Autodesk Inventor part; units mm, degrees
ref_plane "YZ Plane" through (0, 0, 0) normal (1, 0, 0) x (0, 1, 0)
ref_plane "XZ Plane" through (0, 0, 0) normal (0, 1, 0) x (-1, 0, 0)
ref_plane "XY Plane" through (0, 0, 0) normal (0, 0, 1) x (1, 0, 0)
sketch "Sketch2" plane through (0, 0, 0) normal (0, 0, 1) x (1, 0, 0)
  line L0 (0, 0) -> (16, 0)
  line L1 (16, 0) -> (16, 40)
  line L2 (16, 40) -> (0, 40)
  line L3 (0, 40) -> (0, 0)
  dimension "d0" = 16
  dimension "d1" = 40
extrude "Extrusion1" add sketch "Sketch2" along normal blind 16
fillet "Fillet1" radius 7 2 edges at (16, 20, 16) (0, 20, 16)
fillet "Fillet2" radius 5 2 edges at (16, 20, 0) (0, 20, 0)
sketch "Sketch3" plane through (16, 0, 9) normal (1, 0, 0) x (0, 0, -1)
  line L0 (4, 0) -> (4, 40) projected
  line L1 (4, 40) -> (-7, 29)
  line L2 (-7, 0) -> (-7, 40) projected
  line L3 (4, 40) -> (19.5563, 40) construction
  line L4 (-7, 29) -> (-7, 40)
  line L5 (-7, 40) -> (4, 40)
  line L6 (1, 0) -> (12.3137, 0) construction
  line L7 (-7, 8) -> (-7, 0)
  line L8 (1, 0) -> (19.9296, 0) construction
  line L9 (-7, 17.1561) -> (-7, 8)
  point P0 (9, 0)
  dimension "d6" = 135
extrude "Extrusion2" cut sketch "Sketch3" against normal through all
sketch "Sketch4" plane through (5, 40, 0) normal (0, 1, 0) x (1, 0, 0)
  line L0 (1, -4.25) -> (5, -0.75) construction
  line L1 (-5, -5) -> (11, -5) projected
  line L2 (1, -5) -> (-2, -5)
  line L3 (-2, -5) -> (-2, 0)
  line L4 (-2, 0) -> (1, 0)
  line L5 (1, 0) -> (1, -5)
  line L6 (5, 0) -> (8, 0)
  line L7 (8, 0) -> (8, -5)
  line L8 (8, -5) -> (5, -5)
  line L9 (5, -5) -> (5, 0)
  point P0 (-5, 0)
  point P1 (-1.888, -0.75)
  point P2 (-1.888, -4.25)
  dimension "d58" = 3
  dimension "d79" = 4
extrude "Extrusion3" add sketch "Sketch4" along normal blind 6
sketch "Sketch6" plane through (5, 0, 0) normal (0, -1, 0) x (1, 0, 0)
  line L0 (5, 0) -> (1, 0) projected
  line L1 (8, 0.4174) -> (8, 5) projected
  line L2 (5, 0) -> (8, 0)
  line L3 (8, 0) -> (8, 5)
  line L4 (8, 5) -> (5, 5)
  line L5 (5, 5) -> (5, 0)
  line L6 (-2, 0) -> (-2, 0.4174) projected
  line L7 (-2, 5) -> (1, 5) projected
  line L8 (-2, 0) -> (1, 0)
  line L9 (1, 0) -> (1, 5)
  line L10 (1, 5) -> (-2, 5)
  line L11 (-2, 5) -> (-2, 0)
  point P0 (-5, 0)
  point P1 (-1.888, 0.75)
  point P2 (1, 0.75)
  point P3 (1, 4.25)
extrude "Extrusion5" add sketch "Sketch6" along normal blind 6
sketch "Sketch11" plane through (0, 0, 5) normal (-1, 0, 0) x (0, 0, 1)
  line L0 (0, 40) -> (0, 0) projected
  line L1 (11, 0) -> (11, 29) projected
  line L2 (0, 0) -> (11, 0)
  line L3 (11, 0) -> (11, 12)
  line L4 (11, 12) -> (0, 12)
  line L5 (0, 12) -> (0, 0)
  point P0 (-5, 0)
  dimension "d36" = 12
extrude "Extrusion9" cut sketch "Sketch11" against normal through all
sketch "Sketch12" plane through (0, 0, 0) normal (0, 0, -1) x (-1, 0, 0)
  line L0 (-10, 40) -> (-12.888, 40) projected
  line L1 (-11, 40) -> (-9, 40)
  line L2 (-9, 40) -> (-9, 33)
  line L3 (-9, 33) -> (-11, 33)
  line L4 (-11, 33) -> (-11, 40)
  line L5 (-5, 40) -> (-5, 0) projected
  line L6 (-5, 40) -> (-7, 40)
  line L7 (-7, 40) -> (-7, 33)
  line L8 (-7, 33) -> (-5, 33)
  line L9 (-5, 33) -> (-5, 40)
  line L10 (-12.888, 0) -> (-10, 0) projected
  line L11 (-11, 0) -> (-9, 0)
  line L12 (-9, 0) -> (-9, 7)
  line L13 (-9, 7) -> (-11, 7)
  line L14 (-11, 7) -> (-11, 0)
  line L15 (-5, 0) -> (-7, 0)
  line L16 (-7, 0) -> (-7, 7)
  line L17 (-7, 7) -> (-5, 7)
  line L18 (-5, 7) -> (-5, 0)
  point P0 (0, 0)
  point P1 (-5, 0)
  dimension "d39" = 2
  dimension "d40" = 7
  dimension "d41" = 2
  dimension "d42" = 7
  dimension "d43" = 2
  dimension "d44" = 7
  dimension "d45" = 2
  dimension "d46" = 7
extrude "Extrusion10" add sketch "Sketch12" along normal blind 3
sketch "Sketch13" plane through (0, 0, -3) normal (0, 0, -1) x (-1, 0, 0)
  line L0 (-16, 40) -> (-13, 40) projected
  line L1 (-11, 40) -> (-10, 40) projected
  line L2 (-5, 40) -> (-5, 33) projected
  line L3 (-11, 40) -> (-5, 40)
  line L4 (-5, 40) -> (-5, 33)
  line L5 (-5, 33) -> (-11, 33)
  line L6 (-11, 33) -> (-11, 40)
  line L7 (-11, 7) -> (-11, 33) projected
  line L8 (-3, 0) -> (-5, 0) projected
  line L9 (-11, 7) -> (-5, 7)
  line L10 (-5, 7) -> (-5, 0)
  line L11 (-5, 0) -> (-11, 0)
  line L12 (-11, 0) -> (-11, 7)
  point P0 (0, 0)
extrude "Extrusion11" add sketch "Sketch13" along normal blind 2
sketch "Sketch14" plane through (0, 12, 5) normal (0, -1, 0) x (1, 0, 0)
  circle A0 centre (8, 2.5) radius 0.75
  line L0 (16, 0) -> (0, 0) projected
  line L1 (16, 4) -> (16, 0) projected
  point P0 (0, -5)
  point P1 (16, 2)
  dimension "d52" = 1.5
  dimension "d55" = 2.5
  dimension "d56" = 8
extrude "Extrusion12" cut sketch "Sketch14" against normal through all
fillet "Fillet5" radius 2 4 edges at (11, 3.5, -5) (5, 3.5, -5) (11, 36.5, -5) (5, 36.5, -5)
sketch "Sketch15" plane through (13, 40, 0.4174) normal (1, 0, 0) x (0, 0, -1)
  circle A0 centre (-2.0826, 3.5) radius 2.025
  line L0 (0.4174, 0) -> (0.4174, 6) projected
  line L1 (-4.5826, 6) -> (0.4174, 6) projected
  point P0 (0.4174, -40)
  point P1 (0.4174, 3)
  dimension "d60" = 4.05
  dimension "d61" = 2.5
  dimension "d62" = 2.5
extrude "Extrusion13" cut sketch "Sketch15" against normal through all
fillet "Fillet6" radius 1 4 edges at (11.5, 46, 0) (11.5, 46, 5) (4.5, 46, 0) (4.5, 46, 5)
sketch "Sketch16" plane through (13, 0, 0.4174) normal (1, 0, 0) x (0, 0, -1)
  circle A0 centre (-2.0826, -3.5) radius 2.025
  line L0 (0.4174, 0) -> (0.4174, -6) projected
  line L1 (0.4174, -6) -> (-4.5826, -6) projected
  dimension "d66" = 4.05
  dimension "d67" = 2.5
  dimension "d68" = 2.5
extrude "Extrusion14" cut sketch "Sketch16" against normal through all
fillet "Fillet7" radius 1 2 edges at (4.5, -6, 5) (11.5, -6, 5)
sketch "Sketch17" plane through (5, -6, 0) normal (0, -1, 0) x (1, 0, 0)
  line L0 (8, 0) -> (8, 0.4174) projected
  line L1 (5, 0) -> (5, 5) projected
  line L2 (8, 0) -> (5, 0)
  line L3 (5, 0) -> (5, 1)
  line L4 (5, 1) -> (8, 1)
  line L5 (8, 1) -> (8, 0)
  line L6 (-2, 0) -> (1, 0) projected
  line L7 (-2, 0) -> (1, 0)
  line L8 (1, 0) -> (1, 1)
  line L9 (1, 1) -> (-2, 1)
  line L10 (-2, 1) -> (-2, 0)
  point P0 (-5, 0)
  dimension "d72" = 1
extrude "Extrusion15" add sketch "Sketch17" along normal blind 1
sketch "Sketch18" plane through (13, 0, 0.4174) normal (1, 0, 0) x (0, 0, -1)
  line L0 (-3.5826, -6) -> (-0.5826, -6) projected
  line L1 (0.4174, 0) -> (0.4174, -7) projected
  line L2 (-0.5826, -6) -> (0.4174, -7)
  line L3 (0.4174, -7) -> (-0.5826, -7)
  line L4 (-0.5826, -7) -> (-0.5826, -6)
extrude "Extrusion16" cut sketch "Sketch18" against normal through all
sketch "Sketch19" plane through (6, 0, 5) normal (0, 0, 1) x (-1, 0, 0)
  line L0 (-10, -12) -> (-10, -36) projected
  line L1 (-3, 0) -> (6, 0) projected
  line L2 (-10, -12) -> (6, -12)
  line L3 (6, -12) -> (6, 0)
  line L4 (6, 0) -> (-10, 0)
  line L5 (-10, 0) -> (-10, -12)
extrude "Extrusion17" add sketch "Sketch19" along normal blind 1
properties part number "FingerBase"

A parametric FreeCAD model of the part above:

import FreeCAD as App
import Part
import Sketcher
from FreeCAD import Vector
Q = App.Units.Quantity


def edges_at(feature, points):
    """Names of the edges that pass closest to the given points."""
    edges = feature.Shape.Edges
    near = lambda p: min(range(len(edges)), key=lambda i: edges[i].distToShape(Part.Vertex(*p))[0])
    return sorted({f"Edge{near(p) + 1}" for p in points})

doc = App.newDocument("Part")
body = doc.addObject("PartDesign::Body", "Body")

# Sketch on XY plane
sketch1 = doc.addObject("Sketcher::SketchObject", "Sketch")
body.addObject(sketch1)
sketch1.AttachmentSupport = (doc.XY_Plane, [""])
sketch1.MapMode = "FlatFace"
sketch1.addGeometry(Part.LineSegment(Vector(0, 40, 0), Vector(0, 0, 0)), False)
sketch1.addGeometry(Part.LineSegment(Vector(0, 0, 0), Vector(16, 0, 0)), False)
sketch1.addGeometry(Part.LineSegment(Vector(16, 0, 0), Vector(16, 40, 0)), False)
sketch1.addGeometry(Part.LineSegment(Vector(16, 40, 0), Vector(0, 40, 0)), False)
sketch1.addConstraint(Sketcher.Constraint("Coincident", 0, 2, 1, 1))
sketch1.addConstraint(Sketcher.Constraint("Coincident", 1, 2, 2, 1))
sketch1.addConstraint(Sketcher.Constraint("Coincident", 2, 2, 3, 1))
sketch1.addConstraint(Sketcher.Constraint("Coincident", 3, 2, 0, 1))
sketch1.addConstraint(Sketcher.Constraint("Vertical", 0))
sketch1.addConstraint(Sketcher.Constraint("Horizontal", 1))
sketch1.addConstraint(Sketcher.Constraint("Vertical", 2))
sketch1.addConstraint(Sketcher.Constraint("Horizontal", 3))
sketch1.addConstraint(Sketcher.Constraint("Coincident", 0, 2, -1, 1))
sketch1.addConstraint(Sketcher.Constraint("DistanceX", 1, 1, 1, 2, Q("16 mm")))
sketch1.addConstraint(Sketcher.Constraint("DistanceY", 0, 2, 0, 1, Q("40 mm")))
pad1 = doc.addObject("PartDesign::Pad", "Pad")
body.addObject(pad1)
pad1.Profile = sketch1
pad1.Length = 16
doc.recompute()

fillet = doc.addObject("PartDesign::Fillet", "Fillet")
body.addObject(fillet)
fillet.Base = (pad1, edges_at(pad1, [(16, 20, 16), (0, 20, 16)]))
fillet.Radius = 7
doc.recompute()

fillet2 = doc.addObject("PartDesign::Fillet", "Fillet001")
body.addObject(fillet2)
fillet2.Base = (fillet, edges_at(fillet, [(16, 20, 0), (0, 20, 0)]))
fillet2.Radius = 5

# Sketch on YZ plane
sketch2 = doc.addObject("Sketcher::SketchObject", "Sketch001")
body.addObject(sketch2)
sketch2.AttachmentSupport = (doc.YZ_Plane, [""])
sketch2.MapMode = "FlatFace"
sketch2.AttachmentOffset = App.Placement(Vector(0, 0, 16), App.Rotation())
sketch2.addGeometry(Part.LineSegment(Vector(29, 16, 0), Vector(40, 5, 0)), False)
sketch2.addGeometry(Part.LineSegment(Vector(40, 5, 0), Vector(40, 16, 0)), False)
sketch2.addGeometry(Part.LineSegment(Vector(40, 16, 0), Vector(29, 16, 0)), False)
sketch2.addConstraint(Sketcher.Constraint("Coincident", 0, 2, 1, 1))
sketch2.addConstraint(Sketcher.Constraint("Coincident", 1, 2, 2, 1))
sketch2.addConstraint(Sketcher.Constraint("Coincident", 2, 2, 0, 1))
sketch2.addConstraint(Sketcher.Constraint("Vertical", 1))
sketch2.addConstraint(Sketcher.Constraint("Horizontal", 2))
sketch2.addConstraint(Sketcher.Constraint("Equal", 2, 1))
sketch2.addConstraint(Sketcher.Constraint("DistanceX", 2, 2, 2, 1, Q("11 mm")))
sketch2.addConstraint(Sketcher.Constraint("DistanceX", -1, 1, 0, 2, Q("40 mm")))
sketch2.addConstraint(Sketcher.Constraint("DistanceY", -1, 1, 0, 2, Q("5 mm")))
pocket1 = doc.addObject("PartDesign::Pocket", "Pocket")
body.addObject(pocket1)
pocket1.Profile = sketch2
pocket1.Type = "ThroughAll"

# Sketch on XZ plane
sketch3 = doc.addObject("Sketcher::SketchObject", "Sketch002")
body.addObject(sketch3)
sketch3.AttachmentSupport = (doc.XZ_Plane, [""])
sketch3.MapMode = "FlatFace"
sketch3.AttachmentOffset = App.Placement(Vector(0, 0, -40), App.Rotation())
sketch3.addGeometry(Part.LineSegment(Vector(3, 0, 0), Vector(3, 5, 0)), False)
sketch3.addGeometry(Part.LineSegment(Vector(3, 5, 0), Vector(6, 5, 0)), False)
sketch3.addGeometry(Part.LineSegment(Vector(6, 5, 0), Vector(6, 0, 0)), False)
sketch3.addGeometry(Part.LineSegment(Vector(6, 0, 0), Vector(3, 0, 0)), False)
sketch3.addGeometry(Part.LineSegment(Vector(10, 0, 0), Vector(10, 5, 0)), False)
sketch3.addGeometry(Part.LineSegment(Vector(10, 5, 0), Vector(13, 5, 0)), False)
sketch3.addGeometry(Part.LineSegment(Vector(13, 5, 0), Vector(13, 0, 0)), False)
sketch3.addGeometry(Part.LineSegment(Vector(13, 0, 0), Vector(10, 0, 0)), False)
sketch3.addConstraint(Sketcher.Constraint("Coincident", 0, 2, 1, 1))
sketch3.addConstraint(Sketcher.Constraint("Coincident", 1, 2, 2, 1))
sketch3.addConstraint(Sketcher.Constraint("Coincident", 2, 2, 3, 1))
sketch3.addConstraint(Sketcher.Constraint("Coincident", 3, 2, 0, 1))
sketch3.addConstraint(Sketcher.Constraint("Coincident", 4, 2, 5, 1))
sketch3.addConstraint(Sketcher.Constraint("Coincident", 5, 2, 6, 1))
sketch3.addConstraint(Sketcher.Constraint("Coincident", 6, 2, 7, 1))
sketch3.addConstraint(Sketcher.Constraint("Coincident", 7, 2, 4, 1))
sketch3.addConstraint(Sketcher.Constraint("Vertical", 0))
sketch3.addConstraint(Sketcher.Constraint("Horizontal", 1))
sketch3.addConstraint(Sketcher.Constraint("Vertical", 2))
sketch3.addConstraint(Sketcher.Constraint("Horizontal", 3))
sketch3.addConstraint(Sketcher.Constraint("Vertical", 4))
sketch3.addConstraint(Sketcher.Constraint("Horizontal", 5))
sketch3.addConstraint(Sketcher.Constraint("Vertical", 6))
sketch3.addConstraint(Sketcher.Constraint("Horizontal", 7))
sketch3.addConstraint(Sketcher.Constraint("PointOnObject", 2, 2, -1))
sketch3.addConstraint(Sketcher.Constraint("PointOnObject", 6, 2, -1))
sketch3.addConstraint(Sketcher.Constraint("Horizontal", 1, 2, 4, 2))
sketch3.addConstraint(Sketcher.Constraint("Equal", 3, 5))
sketch3.addConstraint(Sketcher.Constraint("DistanceX", 1, 1, 1, 2, Q("3 mm")))
sketch3.addConstraint(Sketcher.Constraint("DistanceX", -1, 1, 0, 2, Q("3 mm")))
sketch3.addConstraint(Sketcher.Constraint("DistanceX", 1, 2, 4, 2, Q("4 mm")))
sketch3.addConstraint(Sketcher.Constraint("DistanceY", 0, 1, 0, 2, Q("5 mm")))
pad2 = doc.addObject("PartDesign::Pad", "Pad001")
body.addObject(pad2)
pad2.Profile = sketch3
pad2.Length = 6
pad2.Reversed = True

# Sketch on XZ plane
sketch4 = doc.addObject("Sketcher::SketchObject", "Sketch003")
body.addObject(sketch4)
sketch4.AttachmentSupport = (doc.XZ_Plane, [""])
sketch4.MapMode = "FlatFace"
sketch4.addGeometry(Part.LineSegment(Vector(3, 0, 0), Vector(6, 0, 0)), False)
sketch4.addGeometry(Part.LineSegment(Vector(6, 0, 0), Vector(6, 5, 0)), False)
sketch4.addGeometry(Part.LineSegment(Vector(6, 5, 0), Vector(3, 5, 0)), False)
sketch4.addGeometry(Part.LineSegment(Vector(3, 5, 0), Vector(3, 0, 0)), False)
sketch4.addGeometry(Part.LineSegment(Vector(10, 5, 0), Vector(10, 0, 0)), False)
sketch4.addGeometry(Part.LineSegment(Vector(10, 0, 0), Vector(13, 0, 0)), False)
sketch4.addGeometry(Part.LineSegment(Vector(13, 0, 0), Vector(13, 5, 0)), False)
sketch4.addGeometry(Part.LineSegment(Vector(13, 5, 0), Vector(10, 5, 0)), False)
sketch4.addConstraint(Sketcher.Constraint("Coincident", 0, 2, 1, 1))
sketch4.addConstraint(Sketcher.Constraint("Coincident", 1, 2, 2, 1))
sketch4.addConstraint(Sketcher.Constraint("Coincident", 2, 2, 3, 1))
sketch4.addConstraint(Sketcher.Constraint("Coincident", 3, 2, 0, 1))
sketch4.addConstraint(Sketcher.Constraint("Coincident", 4, 2, 5, 1))
sketch4.addConstraint(Sketcher.Constraint("Coincident", 5, 2, 6, 1))
sketch4.addConstraint(Sketcher.Constraint("Coincident", 6, 2, 7, 1))
sketch4.addConstraint(Sketcher.Constraint("Coincident", 7, 2, 4, 1))
sketch4.addConstraint(Sketcher.Constraint("Horizontal", 0))
sketch4.addConstraint(Sketcher.Constraint("Vertical", 1))
sketch4.addConstraint(Sketcher.Constraint("Horizontal", 2))
sketch4.addConstraint(Sketcher.Constraint("Vertical", 3))
sketch4.addConstraint(Sketcher.Constraint("Vertical", 4))
sketch4.addConstraint(Sketcher.Constraint("Horizontal", 5))
sketch4.addConstraint(Sketcher.Constraint("Vertical", 6))
sketch4.addConstraint(Sketcher.Constraint("Horizontal", 7))
sketch4.addConstraint(Sketcher.Constraint("PointOnObject", 0, 2, -1))
sketch4.addConstraint(Sketcher.Constraint("PointOnObject", 4, 2, -1))
sketch4.addConstraint(Sketcher.Constraint("Horizontal", 2, 2, 6, 2))
sketch4.addConstraint(Sketcher.Constraint("Equal", 2, 5))
sketch4.addConstraint(Sketcher.Constraint("DistanceX", 0, 1, 0, 2, Q("3 mm")))
sketch4.addConstraint(Sketcher.Constraint("DistanceY", 1, 1, 1, 2, Q("5 mm")))
sketch4.addConstraint(Sketcher.Constraint("DistanceX", -1, 1, 0, 2, Q("6 mm")))
sketch4.addConstraint(Sketcher.Constraint("DistanceX", -1, 1, 4, 2, Q("10 mm")))
pad3 = doc.addObject("PartDesign::Pad", "Pad002")
body.addObject(pad3)
pad3.Profile = sketch4
pad3.Length = 6

# Sketch on YZ plane
sketch5 = doc.addObject("Sketcher::SketchObject", "Sketch004")
body.addObject(sketch5)
sketch5.AttachmentSupport = (doc.YZ_Plane, [""])
sketch5.MapMode = "FlatFace"
sketch5.addGeometry(Part.LineSegment(Vector(12, 16, 0), Vector(12, 5, 0)), False)
sketch5.addGeometry(Part.LineSegment(Vector(12, 5, 0), Vector(0, 5, 0)), False)
sketch5.addGeometry(Part.LineSegment(Vector(0, 5, 0), Vector(0, 16, 0)), False)
sketch5.addGeometry(Part.LineSegment(Vector(0, 16, 0), Vector(12, 16, 0)), False)
sketch5.addConstraint(Sketcher.Constraint("Coincident", 0, 2, 1, 1))
sketch5.addConstraint(Sketcher.Constraint("Coincident", 1, 2, 2, 1))
sketch5.addConstraint(Sketcher.Constraint("Coincident", 2, 2, 3, 1))
sketch5.addConstraint(Sketcher.Constraint("Coincident", 3, 2, 0, 1))
sketch5.addConstraint(Sketcher.Constraint("Vertical", 0))
sketch5.addConstraint(Sketcher.Constraint("Horizontal", 1))
sketch5.addConstraint(Sketcher.Constraint("Vertical", 2))
sketch5.addConstraint(Sketcher.Constraint("Horizontal", 3))
sketch5.addConstraint(Sketcher.Constraint("PointOnObject", 1, 2, -2))
sketch5.addConstraint(Sketcher.Constraint("DistanceX", 1, 2, 1, 1, Q("12 mm")))
sketch5.addConstraint(Sketcher.Constraint("DistanceY", 0, 2, 0, 1, Q("11 mm")))
sketch5.addConstraint(Sketcher.Constraint("DistanceY", -1, 1, 0, 2, Q("5 mm")))
pocket2 = doc.addObject("PartDesign::Pocket", "Pocket001")
body.addObject(pocket2)
pocket2.Profile = sketch5
pocket2.Type = "ThroughAll"
pocket2.Reversed = True

# Sketch on XY plane
sketch6 = doc.addObject("Sketcher::SketchObject", "Sketch005")
body.addObject(sketch6)
sketch6.AttachmentSupport = (doc.XY_Plane, [""])
sketch6.MapMode = "FlatFace"
sketch6.addGeometry(Part.LineSegment(Vector(9, 40, 0), Vector(11, 40, 0)), False)
sketch6.addGeometry(Part.LineSegment(Vector(11, 40, 0), Vector(11, 33, 0)), False)
sketch6.addGeometry(Part.LineSegment(Vector(11, 33, 0), Vector(9, 33, 0)), False)
sketch6.addGeometry(Part.LineSegment(Vector(9, 33, 0), Vector(9, 40, 0)), False)
sketch6.addGeometry(Part.LineSegment(Vector(5, 0, 0), Vector(5, 7, 0)), False)
sketch6.addGeometry(Part.LineSegment(Vector(5, 7, 0), Vector(7, 7, 0)), False)
sketch6.addGeometry(Part.LineSegment(Vector(7, 7, 0), Vector(7, 0, 0)), False)
sketch6.addGeometry(Part.LineSegment(Vector(7, 0, 0), Vector(5, 0, 0)), False)
sketch6.addGeometry(Part.LineSegment(Vector(5, 33, 0), Vector(5, 40, 0)), False)
sketch6.addGeometry(Part.LineSegment(Vector(5, 40, 0), Vector(7, 40, 0)), False)
sketch6.addGeometry(Part.LineSegment(Vector(7, 40, 0), Vector(7, 33, 0)), False)
sketch6.addGeometry(Part.LineSegment(Vector(7, 33, 0), Vector(5, 33, 0)), False)
sketch6.addGeometry(Part.LineSegment(Vector(11, 7, 0), Vector(11, 0, 0)), False)
sketch6.addGeometry(Part.LineSegment(Vector(11, 0, 0), Vector(9, 0, 0)), False)
sketch6.addGeometry(Part.LineSegment(Vector(9, 0, 0), Vector(9, 7, 0)), False)
sketch6.addGeometry(Part.LineSegment(Vector(9, 7, 0), Vector(11, 7, 0)), False)
sketch6.addConstraint(Sketcher.Constraint("Coincident", 0, 2, 1, 1))
sketch6.addConstraint(Sketcher.Constraint("Coincident", 1, 2, 2, 1))
sketch6.addConstraint(Sketcher.Constraint("Coincident", 2, 2, 3, 1))
sketch6.addConstraint(Sketcher.Constraint("Coincident", 3, 2, 0, 1))
sketch6.addConstraint(Sketcher.Constraint("Coincident", 4, 2, 5, 1))
sketch6.addConstraint(Sketcher.Constraint("Coincident", 5, 2, 6, 1))
sketch6.addConstraint(Sketcher.Constraint("Coincident", 6, 2, 7, 1))
sketch6.addConstraint(Sketcher.Constraint("Coincident", 7, 2, 4, 1))
sketch6.addConstraint(Sketcher.Constraint("Coincident", 8, 2, 9, 1))
sketch6.addConstraint(Sketcher.Constraint("Coincident", 9, 2, 10, 1))
sketch6.addConstraint(Sketcher.Constraint("Coincident", 10, 2, 11, 1))
sketch6.addConstraint(Sketcher.Constraint("Coincident", 11, 2, 8, 1))
sketch6.addConstraint(Sketcher.Constraint("Coincident", 12, 2, 13, 1))
sketch6.addConstraint(Sketcher.Constraint("Coincident", 13, 2, 14, 1))
sketch6.addConstraint(Sketcher.Constraint("Coincident", 14, 2, 15, 1))
sketch6.addConstraint(Sketcher.Constraint("Coincident", 15, 2, 12, 1))
sketch6.addConstraint(Sketcher.Constraint("Horizontal", 0))
sketch6.addConstraint(Sketcher.Constraint("Vertical", 1))
sketch6.addConstraint(Sketcher.Constraint("Horizontal", 2))
sketch6.addConstraint(Sketcher.Constraint("Vertical", 3))
sketch6.addConstraint(Sketcher.Constraint("Vertical", 4))
sketch6.addConstraint(Sketcher.Constraint("Horizontal", 5))
sketch6.addConstraint(Sketcher.Constraint("Vertical", 6))
sketch6.addConstraint(Sketcher.Constraint("Horizontal", 7))
sketch6.addConstraint(Sketcher.Constraint("Vertical", 8))
sketch6.addConstraint(Sketcher.Constraint("Horizontal", 9))
sketch6.addConstraint(Sketcher.Constraint("Vertical", 10))
sketch6.addConstraint(Sketcher.Constraint("Horizontal", 11))
sketch6.addConstraint(Sketcher.Constraint("Vertical", 12))
sketch6.addConstraint(Sketcher.Constraint("Horizontal", 13))
sketch6.addConstraint(Sketcher.Constraint("Vertical", 14))
sketch6.addConstraint(Sketcher.Constraint("Horizontal", 15))
sketch6.addConstraint(Sketcher.Constraint("PointOnObject", 6, 2, -1))
sketch6.addConstraint(Sketcher.Constraint("PointOnObject", 12, 2, -1))
sketch6.addConstraint(Sketcher.Constraint("Horizontal", 3, 2, 8, 2))
sketch6.addConstraint(Sketcher.Constraint("Horizontal", 2, 2, 10, 2))
sketch6.addConstraint(Sketcher.Constraint("Horizontal", 5, 2, 14, 2))
sketch6.addConstraint(Sketcher.Constraint("Vertical", 7, 2, 8, 2))
sketch6.addConstraint(Sketcher.Constraint("Vertical", 6, 2, 9, 2))
sketch6.addConstraint(Sketcher.Constraint("Vertical", 1, 2, 12, 2))
sketch6.addConstraint(Sketcher.Constraint("Vertical", 3, 2, 13, 2))
sketch6.addConstraint(Sketcher.Constraint("Equal", 2, 5))
sketch6.addConstraint(Sketcher.Constraint("Equal", 3, 4))
sketch6.addConstraint(Sketcher.Constraint("DistanceX", 0, 1, 0, 2, Q("2 mm")))
sketch6.addConstraint(Sketcher.Constraint("DistanceY", 1, 2, 1, 1, Q("7 mm")))
sketch6.addConstraint(Sketcher.Constraint("DistanceX", -1, 1, 5, 2, Q("7 mm")))
sketch6.addConstraint(Sketcher.Constraint("DistanceX", 5, 2, 2, 2, Q("2 mm")))
sketch6.addConstraint(Sketcher.Constraint("DistanceY", -1, 1, 0, 2, Q("40 mm")))
pad4 = doc.addObject("PartDesign::Pad", "Pad003")
body.addObject(pad4)
pad4.Profile = sketch6
pad4.Length = 3
pad4.Reversed = True

# Sketch on XY plane
sketch7 = doc.addObject("Sketcher::SketchObject", "Sketch006")
body.addObject(sketch7)
sketch7.AttachmentSupport = (doc.XY_Plane, [""])
sketch7.MapMode = "FlatFace"
sketch7.AttachmentOffset = App.Placement(Vector(0, 0, -3), App.Rotation())
sketch7.addGeometry(Part.LineSegment(Vector(5, 7, 0), Vector(11, 7, 0)), False)
sketch7.addGeometry(Part.LineSegment(Vector(11, 7, 0), Vector(11, 0, 0)), False)
sketch7.addGeometry(Part.LineSegment(Vector(11, 0, 0), Vector(5, 0, 0)), False)
sketch7.addGeometry(Part.LineSegment(Vector(5, 0, 0), Vector(5, 7, 0)), False)
sketch7.addGeometry(Part.LineSegment(Vector(5, 40, 0), Vector(11, 40, 0)), False)
sketch7.addGeometry(Part.LineSegment(Vector(11, 40, 0), Vector(11, 33, 0)), False)
sketch7.addGeometry(Part.LineSegment(Vector(11, 33, 0), Vector(5, 33, 0)), False)
sketch7.addGeometry(Part.LineSegment(Vector(5, 33, 0), Vector(5, 40, 0)), False)
sketch7.addConstraint(Sketcher.Constraint("Coincident", 0, 2, 1, 1))
sketch7.addConstraint(Sketcher.Constraint("Coincident", 1, 2, 2, 1))
sketch7.addConstraint(Sketcher.Constraint("Coincident", 2, 2, 3, 1))
sketch7.addConstraint(Sketcher.Constraint("Coincident", 3, 2, 0, 1))
sketch7.addConstraint(Sketcher.Constraint("Coincident", 4, 2, 5, 1))
sketch7.addConstraint(Sketcher.Constraint("Coincident", 5, 2, 6, 1))
sketch7.addConstraint(Sketcher.Constraint("Coincident", 6, 2, 7, 1))
sketch7.addConstraint(Sketcher.Constraint("Coincident", 7, 2, 4, 1))
sketch7.addConstraint(Sketcher.Constraint("Horizontal", 0))
sketch7.addConstraint(Sketcher.Constraint("Vertical", 1))
sketch7.addConstraint(Sketcher.Constraint("Horizontal", 2))
sketch7.addConstraint(Sketcher.Constraint("Vertical", 3))
sketch7.addConstraint(Sketcher.Constraint("Horizontal", 4))
sketch7.addConstraint(Sketcher.Constraint("Vertical", 5))
sketch7.addConstraint(Sketcher.Constraint("Horizontal", 6))
sketch7.addConstraint(Sketcher.Constraint("Vertical", 7))
sketch7.addConstraint(Sketcher.Constraint("PointOnObject", 1, 2, -1))
sketch7.addConstraint(Sketcher.Constraint("Vertical", 1, 2, 4, 2))
sketch7.addConstraint(Sketcher.Constraint("Vertical", 3, 2, 6, 2))
sketch7.addConstraint(Sketcher.Constraint("Equal", 3, 5))
sketch7.addConstraint(Sketcher.Constraint("DistanceX", 0, 1, 0, 2, Q("6 mm")))
sketch7.addConstraint(Sketcher.Constraint("DistanceY", 1, 2, 1, 1, Q("7 mm")))
sketch7.addConstraint(Sketcher.Constraint("DistanceX", -1, 1, 0, 2, Q("11 mm")))
sketch7.addConstraint(Sketcher.Constraint("DistanceY", -1, 1, 4, 2, Q("40 mm")))
pad5 = doc.addObject("PartDesign::Pad", "Pad004")
body.addObject(pad5)
pad5.Profile = sketch7
pad5.Length = 2
pad5.Reversed = True

# Sketch on XZ plane
sketch8 = doc.addObject("Sketcher::SketchObject", "Sketch007")
body.addObject(sketch8)
sketch8.AttachmentSupport = (doc.XZ_Plane, [""])
sketch8.MapMode = "FlatFace"
sketch8.AttachmentOffset = App.Placement(Vector(0, 0, -12), App.Rotation())
sketch8.addGeometry(Part.Circle(Vector(8, 7.5, 0), Vector(0, 0, 1), 0.75), False)
sketch8.addConstraint(Sketcher.Constraint("Diameter", 0, Q("1.5 mm")))
sketch8.addConstraint(Sketcher.Constraint("DistanceX", -1, 1, 0, 3, Q("8 mm")))
sketch8.addConstraint(Sketcher.Constraint("DistanceY", -1, 1, 0, 3, Q("7.5 mm")))
pocket3 = doc.addObject("PartDesign::Pocket", "Pocket002")
body.addObject(pocket3)
pocket3.Profile = sketch8
pocket3.Type = "ThroughAll"
doc.recompute()

fillet3 = doc.addObject("PartDesign::Fillet", "Fillet002")
body.addObject(fillet3)
fillet3.Base = (pocket3, edges_at(pocket3, [
    (11, 3.5, -5),
    (5, 3.5, -5),
    (11, 36.5, -5),
    (5, 36.5, -5),
]))
fillet3.Radius = 2

# Sketch on YZ plane
sketch9 = doc.addObject("Sketcher::SketchObject", "Sketch008")
body.addObject(sketch9)
sketch9.AttachmentSupport = (doc.YZ_Plane, [""])
sketch9.MapMode = "FlatFace"
sketch9.AttachmentOffset = App.Placement(Vector(0, 0, 13), App.Rotation())
sketch9.addGeometry(Part.Circle(Vector(43.5, 2.5, 0), Vector(0, 0, 1), 2.025), False)
sketch9.addConstraint(Sketcher.Constraint("Diameter", 0, Q("4.05 mm")))
sketch9.addConstraint(Sketcher.Constraint("DistanceY", -1, 1, 0, 3, Q("2.5 mm")))
sketch9.addConstraint(Sketcher.Constraint("DistanceX", -1, 1, 0, 3, Q("43.5 mm")))
pocket4 = doc.addObject("PartDesign::Pocket", "Pocket003")
body.addObject(pocket4)
pocket4.Profile = sketch9
pocket4.Type = "ThroughAll"
doc.recompute()

fillet4 = doc.addObject("PartDesign::Fillet", "Fillet003")
body.addObject(fillet4)
fillet4.Base = (pocket4, edges_at(pocket4, [
    (11.5, 46, 0),
    (11.5, 46, 5),
    (4.5, 46, 0),
    (4.5, 46, 5),
]))
fillet4.Radius = 1

# Sketch on YZ plane
sketch10 = doc.addObject("Sketcher::SketchObject", "Sketch009")
body.addObject(sketch10)
sketch10.AttachmentSupport = (doc.YZ_Plane, [""])
sketch10.MapMode = "FlatFace"
sketch10.AttachmentOffset = App.Placement(Vector(0, 0, 13), App.Rotation())
sketch10.addGeometry(Part.Circle(Vector(-3.5, 2.5, 0), Vector(0, 0, 1), 2.025), False)
sketch10.addConstraint(Sketcher.Constraint("Diameter", 0, Q("4.05 mm")))
sketch10.addConstraint(Sketcher.Constraint("DistanceY", -1, 1, 0, 3, Q("2.5 mm")))
sketch10.addConstraint(Sketcher.Constraint("DistanceX", 0, 3, -1, 1, Q("3.5 mm")))
pocket5 = doc.addObject("PartDesign::Pocket", "Pocket004")
body.addObject(pocket5)
pocket5.Profile = sketch10
pocket5.Type = "ThroughAll"
doc.recompute()

fillet5 = doc.addObject("PartDesign::Fillet", "Fillet004")
body.addObject(fillet5)
fillet5.Base = (pocket5, edges_at(pocket5, [(4.5, -6, 5), (11.5, -6, 5)]))
fillet5.Radius = 1

# Sketch on XZ plane
sketch11 = doc.addObject("Sketcher::SketchObject", "Sketch010")
body.addObject(sketch11)
sketch11.AttachmentSupport = (doc.XZ_Plane, [""])
sketch11.MapMode = "FlatFace"
sketch11.AttachmentOffset = App.Placement(Vector(0, 0, 6), App.Rotation())
sketch11.addGeometry(Part.LineSegment(Vector(10, 0, 0), Vector(13, 0, 0)), False)
sketch11.addGeometry(Part.LineSegment(Vector(13, 0, 0), Vector(13, 1, 0)), False)
sketch11.addGeometry(Part.LineSegment(Vector(13, 1, 0), Vector(10, 1, 0)), False)
sketch11.addGeometry(Part.LineSegment(Vector(10, 1, 0), Vector(10, 0, 0)), False)
sketch11.addGeometry(Part.LineSegment(Vector(3, 1, 0), Vector(3, 0, 0)), False)
sketch11.addGeometry(Part.LineSegment(Vector(3, 0, 0), Vector(6, 0, 0)), False)
sketch11.addGeometry(Part.LineSegment(Vector(6, 0, 0), Vector(6, 1, 0)), False)
sketch11.addGeometry(Part.LineSegment(Vector(6, 1, 0), Vector(3, 1, 0)), False)
sketch11.addConstraint(Sketcher.Constraint("Coincident", 0, 2, 1, 1))
sketch11.addConstraint(Sketcher.Constraint("Coincident", 1, 2, 2, 1))
sketch11.addConstraint(Sketcher.Constraint("Coincident", 2, 2, 3, 1))
sketch11.addConstraint(Sketcher.Constraint("Coincident", 3, 2, 0, 1))
sketch11.addConstraint(Sketcher.Constraint("Coincident", 4, 2, 5, 1))
sketch11.addConstraint(Sketcher.Constraint("Coincident", 5, 2, 6, 1))
sketch11.addConstraint(Sketcher.Constraint("Coincident", 6, 2, 7, 1))
sketch11.addConstraint(Sketcher.Constraint("Coincident", 7, 2, 4, 1))
sketch11.addConstraint(Sketcher.Constraint("Horizontal", 0))
sketch11.addConstraint(Sketcher.Constraint("Vertical", 1))
sketch11.addConstraint(Sketcher.Constraint("Horizontal", 2))
sketch11.addConstraint(Sketcher.Constraint("Vertical", 3))
sketch11.addConstraint(Sketcher.Constraint("Vertical", 4))
sketch11.addConstraint(Sketcher.Constraint("Horizontal", 5))
sketch11.addConstraint(Sketcher.Constraint("Vertical", 6))
sketch11.addConstraint(Sketcher.Constraint("Horizontal", 7))
sketch11.addConstraint(Sketcher.Constraint("PointOnObject", 0, 2, -1))
sketch11.addConstraint(Sketcher.Constraint("PointOnObject", 4, 2, -1))
sketch11.addConstraint(Sketcher.Constraint("Horizontal", 2, 2, 6, 2))
sketch11.addConstraint(Sketcher.Constraint("Equal", 2, 5))
sketch11.addConstraint(Sketcher.Constraint("DistanceY", 1, 1, 1, 2, Q("1 mm")))
sketch11.addConstraint(Sketcher.Constraint("DistanceX", 0, 1, 0, 2, Q("3 mm")))
sketch11.addConstraint(Sketcher.Constraint("DistanceX", -1, 1, 0, 2, Q("13 mm")))
sketch11.addConstraint(Sketcher.Constraint("DistanceX", -1, 1, 4, 2, Q("3 mm")))
pad6 = doc.addObject("PartDesign::Pad", "Pad005")
body.addObject(pad6)
pad6.Profile = sketch11
pad6.Length = 1

# Sketch on YZ plane
sketch12 = doc.addObject("Sketcher::SketchObject", "Sketch011")
body.addObject(sketch12)
sketch12.AttachmentSupport = (doc.YZ_Plane, [""])
sketch12.MapMode = "FlatFace"
sketch12.AttachmentOffset = App.Placement(Vector(0, 0, 13), App.Rotation())
sketch12.addGeometry(Part.LineSegment(Vector(-7, 0, 0), Vector(-6, 1, 0)), False)
sketch12.addGeometry(Part.LineSegment(Vector(-6, 1, 0), Vector(-7, 1, 0)), False)
sketch12.addGeometry(Part.LineSegment(Vector(-7, 1, 0), Vector(-7, 0, 0)), False)
sketch12.addConstraint(Sketcher.Constraint("Coincident", 0, 2, 1, 1))
sketch12.addConstraint(Sketcher.Constraint("Coincident", 1, 2, 2, 1))
sketch12.addConstraint(Sketcher.Constraint("Coincident", 2, 2, 0, 1))
sketch12.addConstraint(Sketcher.Constraint("Horizontal", 1))
sketch12.addConstraint(Sketcher.Constraint("Vertical", 2))
sketch12.addConstraint(Sketcher.Constraint("PointOnObject", 2, 2, -1))
sketch12.addConstraint(Sketcher.Constraint("Equal", 1, 2))
sketch12.addConstraint(Sketcher.Constraint("DistanceX", 1, 2, 1, 1, Q("1 mm")))
sketch12.addConstraint(Sketcher.Constraint("DistanceX", 0, 2, -1, 1, Q("6 mm")))
pocket6 = doc.addObject("PartDesign::Pocket", "Pocket005")
body.addObject(pocket6)
pocket6.Profile = sketch12
pocket6.Type = "ThroughAll"

# Sketch on XY plane
sketch13 = doc.addObject("Sketcher::SketchObject", "Sketch012")
body.addObject(sketch13)
sketch13.AttachmentSupport = (doc.XY_Plane, [""])
sketch13.MapMode = "FlatFace"
sketch13.AttachmentOffset = App.Placement(Vector(0, 0, 5), App.Rotation())
sketch13.addGeometry(Part.LineSegment(Vector(0, 0, 0), Vector(16, 0, 0)), False)
sketch13.addGeometry(Part.LineSegment(Vector(16, 0, 0), Vector(16, 12, 0)), False)
sketch13.addGeometry(Part.LineSegment(Vector(16, 12, 0), Vector(0, 12, 0)), False)
sketch13.addGeometry(Part.LineSegment(Vector(0, 12, 0), Vector(0, 0, 0)), False)
sketch13.addConstraint(Sketcher.Constraint("Coincident", 0, 2, 1, 1))
sketch13.addConstraint(Sketcher.Constraint("Coincident", 1, 2, 2, 1))
sketch13.addConstraint(Sketcher.Constraint("Coincident", 2, 2, 3, 1))
sketch13.addConstraint(Sketcher.Constraint("Coincident", 3, 2, 0, 1))
sketch13.addConstraint(Sketcher.Constraint("Horizontal", 0))
sketch13.addConstraint(Sketcher.Constraint("Vertical", 1))
sketch13.addConstraint(Sketcher.Constraint("Horizontal", 2))
sketch13.addConstraint(Sketcher.Constraint("Vertical", 3))
sketch13.addConstraint(Sketcher.Constraint("Coincident", 3, 2, -1, 1))
sketch13.addConstraint(Sketcher.Constraint("DistanceX", 0, 1, 0, 2, Q("16 mm")))
sketch13.addConstraint(Sketcher.Constraint("DistanceY", 1, 1, 1, 2, Q("12 mm")))
pad7 = doc.addObject("PartDesign::Pad", "Pad006")
body.addObject(pad7)
pad7.Profile = sketch13
pad7.Length = 1

doc.recompute()
